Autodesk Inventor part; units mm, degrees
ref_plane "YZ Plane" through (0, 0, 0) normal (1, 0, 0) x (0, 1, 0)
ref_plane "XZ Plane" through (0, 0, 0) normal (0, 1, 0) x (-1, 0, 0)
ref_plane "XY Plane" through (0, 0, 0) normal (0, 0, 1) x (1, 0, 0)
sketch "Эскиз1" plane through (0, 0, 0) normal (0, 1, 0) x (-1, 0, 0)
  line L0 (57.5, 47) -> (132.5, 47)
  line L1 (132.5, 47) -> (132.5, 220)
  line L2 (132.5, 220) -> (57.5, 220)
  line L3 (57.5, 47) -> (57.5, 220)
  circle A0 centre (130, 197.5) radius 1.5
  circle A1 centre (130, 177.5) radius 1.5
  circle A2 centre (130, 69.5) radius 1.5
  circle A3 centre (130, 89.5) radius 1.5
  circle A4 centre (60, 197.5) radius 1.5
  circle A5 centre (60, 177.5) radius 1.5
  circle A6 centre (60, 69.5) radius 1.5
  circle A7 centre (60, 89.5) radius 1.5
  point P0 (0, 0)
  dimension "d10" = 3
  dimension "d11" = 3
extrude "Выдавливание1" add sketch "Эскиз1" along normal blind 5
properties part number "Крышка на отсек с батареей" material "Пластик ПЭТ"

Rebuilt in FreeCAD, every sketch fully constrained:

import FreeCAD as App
import Part
import Sketcher

doc = App.newDocument("Part")
body = doc.addObject("PartDesign::Body", "Body")

# Sketch on XZ plane
sketch1 = body.newObject("Sketcher::SketchObject", "Sketch")
sketch1.AttachmentSupport = (doc.getObject("XZ_Plane"), [""])
sketch1.MapMode = "FlatFace"
sketch1.addGeometry([
    Part.LineSegment(App.Vector(-57.5, 220, 0), App.Vector(-57.5, 47, 0)),  # 0
    Part.LineSegment(App.Vector(-57.5, 47, 0), App.Vector(-132.5, 47, 0)),  # 1
    Part.LineSegment(App.Vector(-132.5, 47, 0), App.Vector(-132.5, 220, 0)),  # 2
    Part.LineSegment(App.Vector(-132.5, 220, 0), App.Vector(-57.5, 220, 0)),  # 3
    Part.Circle(App.Vector(-60, 69.5, 0), App.Vector(0, 0, 1), 1.5),  # 4
    Part.Circle(App.Vector(-60, 89.5, 0), App.Vector(0, 0, 1), 1.5),  # 5
    Part.Circle(App.Vector(-130, 69.5, 0), App.Vector(0, 0, 1), 1.5),  # 6
    Part.Circle(App.Vector(-130, 89.5, 0), App.Vector(0, 0, 1), 1.5),  # 7
    Part.Circle(App.Vector(-60, 177.5, 0), App.Vector(0, 0, 1), 1.5),  # 8
    Part.Circle(App.Vector(-60, 197.5, 0), App.Vector(0, 0, 1), 1.5),  # 9
    Part.Circle(App.Vector(-130, 177.5, 0), App.Vector(0, 0, 1), 1.5),  # 10
    Part.Circle(App.Vector(-130, 197.5, 0), App.Vector(0, 0, 1), 1.5),  # 11
], False)
sketch1.addConstraint([
    Sketcher.Constraint("Coincident", 0, 2, 1, 1),
    Sketcher.Constraint("Coincident", 1, 2, 2, 1),
    Sketcher.Constraint("Coincident", 2, 2, 3, 1),
    Sketcher.Constraint("Coincident", 3, 2, 0, 1),
    Sketcher.Constraint("Vertical", 0),
    Sketcher.Constraint("Horizontal", 1),
    Sketcher.Constraint("Vertical", 2),
    Sketcher.Constraint("Horizontal", 3),
    Sketcher.Constraint("Equal", 4, 5),
    Sketcher.Constraint("Equal", 5, 6),
    Sketcher.Constraint("Equal", 6, 7),
    Sketcher.Constraint("Equal", 7, 8),
    Sketcher.Constraint("Equal", 8, 9),
    Sketcher.Constraint("Equal", 9, 10),
    Sketcher.Constraint("Equal", 10, 11),
    Sketcher.Constraint("Horizontal", 4, 3, 6, 3),
    Sketcher.Constraint("Horizontal", 5, 3, 7, 3),
    Sketcher.Constraint("Horizontal", 8, 3, 10, 3),
    Sketcher.Constraint("Horizontal", 9, 3, 11, 3),
    Sketcher.Constraint("Vertical", 4, 3, 5, 3),
    Sketcher.Constraint("Vertical", 6, 3, 7, 3),
    Sketcher.Constraint("Vertical", 5, 3, 8, 3),
    Sketcher.Constraint("Vertical", 8, 3, 9, 3),
    Sketcher.Constraint("Vertical", 7, 3, 10, 3),
    Sketcher.Constraint("Vertical", 10, 3, 11, 3),
    Sketcher.Constraint("Diameter", 4, 3.0),
    Sketcher.Constraint("DistanceX", 1, 2, 1, 1, 75.0),
    Sketcher.Constraint("DistanceY", 0, 2, 0, 1, 173.0),
    Sketcher.Constraint("DistanceX", 4, 3, -1, 1, 60.0),
    Sketcher.Constraint("DistanceX", 6, 3, -1, 1, 130.0),
    Sketcher.Constraint("DistanceY", -1, 1, 0, 2, 47.0),
    Sketcher.Constraint("DistanceY", 4, 3, 5, 3, 20.0),
    Sketcher.Constraint("DistanceY", 5, 3, 8, 3, 88.0),
    Sketcher.Constraint("DistanceY", 8, 3, 9, 3, 20.0),
    Sketcher.Constraint("DistanceY", -1, 1, 4, 3, 69.5),
    Sketcher.Constraint("DistanceX", 0, 2, -1, 1, 57.5),
])
pad1 = body.newObject("PartDesign::Pad", "Pad")
pad1.Profile = sketch1
pad1.Length = 5
pad1.Reversed = True

doc.recompute()
